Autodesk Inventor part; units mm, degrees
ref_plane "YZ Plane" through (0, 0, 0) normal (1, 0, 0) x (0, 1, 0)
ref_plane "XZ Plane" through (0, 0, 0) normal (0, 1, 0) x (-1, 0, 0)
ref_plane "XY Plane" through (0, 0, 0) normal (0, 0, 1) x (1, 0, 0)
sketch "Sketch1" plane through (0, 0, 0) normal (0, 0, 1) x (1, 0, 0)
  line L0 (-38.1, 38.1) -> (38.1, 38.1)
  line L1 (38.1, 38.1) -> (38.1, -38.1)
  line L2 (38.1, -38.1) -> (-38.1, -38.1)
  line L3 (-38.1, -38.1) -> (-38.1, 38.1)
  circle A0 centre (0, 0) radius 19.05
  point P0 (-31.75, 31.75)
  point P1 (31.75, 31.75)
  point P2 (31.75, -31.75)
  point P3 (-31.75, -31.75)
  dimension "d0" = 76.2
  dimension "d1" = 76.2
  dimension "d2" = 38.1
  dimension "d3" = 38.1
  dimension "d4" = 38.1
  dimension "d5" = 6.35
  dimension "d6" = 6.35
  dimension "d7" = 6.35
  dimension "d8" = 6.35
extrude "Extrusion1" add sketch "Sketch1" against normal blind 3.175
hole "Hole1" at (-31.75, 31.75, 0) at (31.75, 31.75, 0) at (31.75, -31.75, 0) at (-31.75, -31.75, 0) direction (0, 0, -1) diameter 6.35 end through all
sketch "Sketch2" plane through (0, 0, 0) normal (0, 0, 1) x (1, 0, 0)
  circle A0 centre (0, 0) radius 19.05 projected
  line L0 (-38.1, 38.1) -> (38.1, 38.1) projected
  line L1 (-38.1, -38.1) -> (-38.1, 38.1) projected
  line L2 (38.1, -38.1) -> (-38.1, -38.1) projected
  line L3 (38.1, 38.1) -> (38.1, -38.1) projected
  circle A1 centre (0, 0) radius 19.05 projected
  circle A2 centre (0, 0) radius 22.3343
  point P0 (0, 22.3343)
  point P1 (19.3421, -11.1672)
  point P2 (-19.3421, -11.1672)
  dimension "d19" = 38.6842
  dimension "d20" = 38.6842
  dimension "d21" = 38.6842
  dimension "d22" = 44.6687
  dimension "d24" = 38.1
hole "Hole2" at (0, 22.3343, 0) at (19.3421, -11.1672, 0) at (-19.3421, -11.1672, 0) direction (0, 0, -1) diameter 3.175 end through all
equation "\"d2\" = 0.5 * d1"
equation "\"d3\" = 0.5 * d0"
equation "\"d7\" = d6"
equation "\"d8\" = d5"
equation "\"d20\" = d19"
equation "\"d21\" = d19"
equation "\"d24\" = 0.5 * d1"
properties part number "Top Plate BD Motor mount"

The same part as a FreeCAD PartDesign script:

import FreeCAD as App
import Part
import Sketcher
Q = App.Units.Quantity

doc = App.newDocument("Part")
body = doc.addObject("PartDesign::Body", "Body")

sketch1 = body.newObject("Sketcher::SketchObject", "Sketch")
sketch1.AttachmentSupport = (doc.getObject("XY_Plane"), [""])
sketch1.MapMode = "FlatFace"
sketch1.addGeometry([
    Part.LineSegment(App.Vector(38, 38, 0), App.Vector(-38, 38, 0)),
    Part.LineSegment(App.Vector(-38, 38, 0), App.Vector(-38, -38, 0)),
    Part.LineSegment(App.Vector(-38, -38, 0), App.Vector(38, -38, 0)),
    Part.LineSegment(App.Vector(38, -38, 0), App.Vector(38, 38, 0)),
    Part.Circle(App.Vector(0, 0, 0), App.Vector(0, 0, 1), 19),
], False)
sketch1.addConstraint([
    Sketcher.Constraint("Coincident", 0, 2, 1, 1),
    Sketcher.Constraint("Coincident", 1, 2, 2, 1),
    Sketcher.Constraint("Coincident", 2, 2, 3, 1),
    Sketcher.Constraint("Coincident", 3, 2, 0, 1),
    Sketcher.Constraint("Horizontal", 0),
    Sketcher.Constraint("Vertical", 1),
    Sketcher.Constraint("Horizontal", 2),
    Sketcher.Constraint("Vertical", 3),
    Sketcher.Constraint("Coincident", 4, 3, -1, 1),
    Sketcher.Constraint("Symmetric", 0, 2, 2, 2, -1, 1),
    Sketcher.Constraint("Equal", 2, 1),
    Sketcher.Constraint("Diameter", 4, Q("1.5 in")),
    Sketcher.Constraint("DistanceX", 0, 2, 0, 1, Q("3 in")),
])
pad1 = body.newObject("PartDesign::Pad", "Pad")
pad1.Profile = sketch1
pad1.Length = Q("0.125 in")
pad1.Reversed = True

sketch2 = body.newObject("Sketcher::SketchObject", "Sketch001")
sketch2.AttachmentSupport = (doc.getObject("XY_Plane"), [""])
sketch2.MapMode = "FlatFace"
sketch2.addGeometry([
    Part.Circle(App.Vector(-31.8, 31.8, 0), App.Vector(0, 0, 1), 3.2),
    Part.Circle(App.Vector(31.8, 31.8, 0), App.Vector(0, 0, 1), 3.2),
    Part.Circle(App.Vector(31.8, -31.8, 0), App.Vector(0, 0, 1), 3.2),
    Part.Circle(App.Vector(-31.8, -31.8, 0), App.Vector(0, 0, 1), 3.2),
], False)
sketch2.addConstraint([
    Sketcher.Constraint("Equal", 0, 1),
    Sketcher.Constraint("Equal", 1, 2),
    Sketcher.Constraint("Equal", 2, 3),
    Sketcher.Constraint("Symmetric", 0, 3, 2, 3, -1, 1),
    Sketcher.Constraint("Symmetric", 1, 3, 3, 3, -1, 1),
    Sketcher.Constraint("Symmetric", 0, 3, 1, 3, -2),
    Sketcher.Constraint("Diameter", 0, Q("0.25 in")),
    Sketcher.Constraint("DistanceX", 0, 3, 1, 3, Q("2.5 in")),
    Sketcher.Constraint("DistanceY", 2, 3, 1, 3, Q("2.5 in")),
])
doc.recompute()
hole = body.newObject("PartDesign::Hole", "Hole")
hole.Profile = sketch2
hole.ThreadType = "None"
hole.Diameter = Q("0.25 in")
hole.DepthType = "ThroughAll"

sketch3 = body.newObject("Sketcher::SketchObject", "Sketch002")
sketch3.AttachmentSupport = (doc.getObject("XY_Plane"), [""])
sketch3.MapMode = "FlatFace"
sketch3.addGeometry([
    Part.Circle(App.Vector(0, 22.3, 0), App.Vector(0, 0, 1), 1.6),
    Part.Circle(App.Vector(19.3, -11.2, 0), App.Vector(0, 0, 1), 1.6),
    Part.Circle(App.Vector(-19.3, -11.2, 0), App.Vector(0, 0, 1), 1.6),
], False)
sketch3.addConstraint([
    Sketcher.Constraint("Equal", 0, 1),
    Sketcher.Constraint("Equal", 1, 2),
    Sketcher.Constraint("Symmetric", 1, 3, 2, 3, -2),
    Sketcher.Constraint("PointOnObject", 0, 3, -2),
    Sketcher.Constraint("Diameter", 0, Q("0.125 in")),
    Sketcher.Constraint("DistanceX", 2, 3, 1, 3, Q("1.523 in")),
    Sketcher.Constraint("DistanceY", -1, 1, 0, 3, Q("0.8793 in")),
    Sketcher.Constraint("DistanceY", 1, 3, -1, 1, Q("11.1672 mm")),
])
doc.recompute()
hole2 = body.newObject("PartDesign::Hole", "Hole001")
hole2.Profile = sketch3
hole2.ThreadType = "None"
hole2.Diameter = Q("0.125 in")
hole2.DepthType = "ThroughAll"

doc.recompute()
